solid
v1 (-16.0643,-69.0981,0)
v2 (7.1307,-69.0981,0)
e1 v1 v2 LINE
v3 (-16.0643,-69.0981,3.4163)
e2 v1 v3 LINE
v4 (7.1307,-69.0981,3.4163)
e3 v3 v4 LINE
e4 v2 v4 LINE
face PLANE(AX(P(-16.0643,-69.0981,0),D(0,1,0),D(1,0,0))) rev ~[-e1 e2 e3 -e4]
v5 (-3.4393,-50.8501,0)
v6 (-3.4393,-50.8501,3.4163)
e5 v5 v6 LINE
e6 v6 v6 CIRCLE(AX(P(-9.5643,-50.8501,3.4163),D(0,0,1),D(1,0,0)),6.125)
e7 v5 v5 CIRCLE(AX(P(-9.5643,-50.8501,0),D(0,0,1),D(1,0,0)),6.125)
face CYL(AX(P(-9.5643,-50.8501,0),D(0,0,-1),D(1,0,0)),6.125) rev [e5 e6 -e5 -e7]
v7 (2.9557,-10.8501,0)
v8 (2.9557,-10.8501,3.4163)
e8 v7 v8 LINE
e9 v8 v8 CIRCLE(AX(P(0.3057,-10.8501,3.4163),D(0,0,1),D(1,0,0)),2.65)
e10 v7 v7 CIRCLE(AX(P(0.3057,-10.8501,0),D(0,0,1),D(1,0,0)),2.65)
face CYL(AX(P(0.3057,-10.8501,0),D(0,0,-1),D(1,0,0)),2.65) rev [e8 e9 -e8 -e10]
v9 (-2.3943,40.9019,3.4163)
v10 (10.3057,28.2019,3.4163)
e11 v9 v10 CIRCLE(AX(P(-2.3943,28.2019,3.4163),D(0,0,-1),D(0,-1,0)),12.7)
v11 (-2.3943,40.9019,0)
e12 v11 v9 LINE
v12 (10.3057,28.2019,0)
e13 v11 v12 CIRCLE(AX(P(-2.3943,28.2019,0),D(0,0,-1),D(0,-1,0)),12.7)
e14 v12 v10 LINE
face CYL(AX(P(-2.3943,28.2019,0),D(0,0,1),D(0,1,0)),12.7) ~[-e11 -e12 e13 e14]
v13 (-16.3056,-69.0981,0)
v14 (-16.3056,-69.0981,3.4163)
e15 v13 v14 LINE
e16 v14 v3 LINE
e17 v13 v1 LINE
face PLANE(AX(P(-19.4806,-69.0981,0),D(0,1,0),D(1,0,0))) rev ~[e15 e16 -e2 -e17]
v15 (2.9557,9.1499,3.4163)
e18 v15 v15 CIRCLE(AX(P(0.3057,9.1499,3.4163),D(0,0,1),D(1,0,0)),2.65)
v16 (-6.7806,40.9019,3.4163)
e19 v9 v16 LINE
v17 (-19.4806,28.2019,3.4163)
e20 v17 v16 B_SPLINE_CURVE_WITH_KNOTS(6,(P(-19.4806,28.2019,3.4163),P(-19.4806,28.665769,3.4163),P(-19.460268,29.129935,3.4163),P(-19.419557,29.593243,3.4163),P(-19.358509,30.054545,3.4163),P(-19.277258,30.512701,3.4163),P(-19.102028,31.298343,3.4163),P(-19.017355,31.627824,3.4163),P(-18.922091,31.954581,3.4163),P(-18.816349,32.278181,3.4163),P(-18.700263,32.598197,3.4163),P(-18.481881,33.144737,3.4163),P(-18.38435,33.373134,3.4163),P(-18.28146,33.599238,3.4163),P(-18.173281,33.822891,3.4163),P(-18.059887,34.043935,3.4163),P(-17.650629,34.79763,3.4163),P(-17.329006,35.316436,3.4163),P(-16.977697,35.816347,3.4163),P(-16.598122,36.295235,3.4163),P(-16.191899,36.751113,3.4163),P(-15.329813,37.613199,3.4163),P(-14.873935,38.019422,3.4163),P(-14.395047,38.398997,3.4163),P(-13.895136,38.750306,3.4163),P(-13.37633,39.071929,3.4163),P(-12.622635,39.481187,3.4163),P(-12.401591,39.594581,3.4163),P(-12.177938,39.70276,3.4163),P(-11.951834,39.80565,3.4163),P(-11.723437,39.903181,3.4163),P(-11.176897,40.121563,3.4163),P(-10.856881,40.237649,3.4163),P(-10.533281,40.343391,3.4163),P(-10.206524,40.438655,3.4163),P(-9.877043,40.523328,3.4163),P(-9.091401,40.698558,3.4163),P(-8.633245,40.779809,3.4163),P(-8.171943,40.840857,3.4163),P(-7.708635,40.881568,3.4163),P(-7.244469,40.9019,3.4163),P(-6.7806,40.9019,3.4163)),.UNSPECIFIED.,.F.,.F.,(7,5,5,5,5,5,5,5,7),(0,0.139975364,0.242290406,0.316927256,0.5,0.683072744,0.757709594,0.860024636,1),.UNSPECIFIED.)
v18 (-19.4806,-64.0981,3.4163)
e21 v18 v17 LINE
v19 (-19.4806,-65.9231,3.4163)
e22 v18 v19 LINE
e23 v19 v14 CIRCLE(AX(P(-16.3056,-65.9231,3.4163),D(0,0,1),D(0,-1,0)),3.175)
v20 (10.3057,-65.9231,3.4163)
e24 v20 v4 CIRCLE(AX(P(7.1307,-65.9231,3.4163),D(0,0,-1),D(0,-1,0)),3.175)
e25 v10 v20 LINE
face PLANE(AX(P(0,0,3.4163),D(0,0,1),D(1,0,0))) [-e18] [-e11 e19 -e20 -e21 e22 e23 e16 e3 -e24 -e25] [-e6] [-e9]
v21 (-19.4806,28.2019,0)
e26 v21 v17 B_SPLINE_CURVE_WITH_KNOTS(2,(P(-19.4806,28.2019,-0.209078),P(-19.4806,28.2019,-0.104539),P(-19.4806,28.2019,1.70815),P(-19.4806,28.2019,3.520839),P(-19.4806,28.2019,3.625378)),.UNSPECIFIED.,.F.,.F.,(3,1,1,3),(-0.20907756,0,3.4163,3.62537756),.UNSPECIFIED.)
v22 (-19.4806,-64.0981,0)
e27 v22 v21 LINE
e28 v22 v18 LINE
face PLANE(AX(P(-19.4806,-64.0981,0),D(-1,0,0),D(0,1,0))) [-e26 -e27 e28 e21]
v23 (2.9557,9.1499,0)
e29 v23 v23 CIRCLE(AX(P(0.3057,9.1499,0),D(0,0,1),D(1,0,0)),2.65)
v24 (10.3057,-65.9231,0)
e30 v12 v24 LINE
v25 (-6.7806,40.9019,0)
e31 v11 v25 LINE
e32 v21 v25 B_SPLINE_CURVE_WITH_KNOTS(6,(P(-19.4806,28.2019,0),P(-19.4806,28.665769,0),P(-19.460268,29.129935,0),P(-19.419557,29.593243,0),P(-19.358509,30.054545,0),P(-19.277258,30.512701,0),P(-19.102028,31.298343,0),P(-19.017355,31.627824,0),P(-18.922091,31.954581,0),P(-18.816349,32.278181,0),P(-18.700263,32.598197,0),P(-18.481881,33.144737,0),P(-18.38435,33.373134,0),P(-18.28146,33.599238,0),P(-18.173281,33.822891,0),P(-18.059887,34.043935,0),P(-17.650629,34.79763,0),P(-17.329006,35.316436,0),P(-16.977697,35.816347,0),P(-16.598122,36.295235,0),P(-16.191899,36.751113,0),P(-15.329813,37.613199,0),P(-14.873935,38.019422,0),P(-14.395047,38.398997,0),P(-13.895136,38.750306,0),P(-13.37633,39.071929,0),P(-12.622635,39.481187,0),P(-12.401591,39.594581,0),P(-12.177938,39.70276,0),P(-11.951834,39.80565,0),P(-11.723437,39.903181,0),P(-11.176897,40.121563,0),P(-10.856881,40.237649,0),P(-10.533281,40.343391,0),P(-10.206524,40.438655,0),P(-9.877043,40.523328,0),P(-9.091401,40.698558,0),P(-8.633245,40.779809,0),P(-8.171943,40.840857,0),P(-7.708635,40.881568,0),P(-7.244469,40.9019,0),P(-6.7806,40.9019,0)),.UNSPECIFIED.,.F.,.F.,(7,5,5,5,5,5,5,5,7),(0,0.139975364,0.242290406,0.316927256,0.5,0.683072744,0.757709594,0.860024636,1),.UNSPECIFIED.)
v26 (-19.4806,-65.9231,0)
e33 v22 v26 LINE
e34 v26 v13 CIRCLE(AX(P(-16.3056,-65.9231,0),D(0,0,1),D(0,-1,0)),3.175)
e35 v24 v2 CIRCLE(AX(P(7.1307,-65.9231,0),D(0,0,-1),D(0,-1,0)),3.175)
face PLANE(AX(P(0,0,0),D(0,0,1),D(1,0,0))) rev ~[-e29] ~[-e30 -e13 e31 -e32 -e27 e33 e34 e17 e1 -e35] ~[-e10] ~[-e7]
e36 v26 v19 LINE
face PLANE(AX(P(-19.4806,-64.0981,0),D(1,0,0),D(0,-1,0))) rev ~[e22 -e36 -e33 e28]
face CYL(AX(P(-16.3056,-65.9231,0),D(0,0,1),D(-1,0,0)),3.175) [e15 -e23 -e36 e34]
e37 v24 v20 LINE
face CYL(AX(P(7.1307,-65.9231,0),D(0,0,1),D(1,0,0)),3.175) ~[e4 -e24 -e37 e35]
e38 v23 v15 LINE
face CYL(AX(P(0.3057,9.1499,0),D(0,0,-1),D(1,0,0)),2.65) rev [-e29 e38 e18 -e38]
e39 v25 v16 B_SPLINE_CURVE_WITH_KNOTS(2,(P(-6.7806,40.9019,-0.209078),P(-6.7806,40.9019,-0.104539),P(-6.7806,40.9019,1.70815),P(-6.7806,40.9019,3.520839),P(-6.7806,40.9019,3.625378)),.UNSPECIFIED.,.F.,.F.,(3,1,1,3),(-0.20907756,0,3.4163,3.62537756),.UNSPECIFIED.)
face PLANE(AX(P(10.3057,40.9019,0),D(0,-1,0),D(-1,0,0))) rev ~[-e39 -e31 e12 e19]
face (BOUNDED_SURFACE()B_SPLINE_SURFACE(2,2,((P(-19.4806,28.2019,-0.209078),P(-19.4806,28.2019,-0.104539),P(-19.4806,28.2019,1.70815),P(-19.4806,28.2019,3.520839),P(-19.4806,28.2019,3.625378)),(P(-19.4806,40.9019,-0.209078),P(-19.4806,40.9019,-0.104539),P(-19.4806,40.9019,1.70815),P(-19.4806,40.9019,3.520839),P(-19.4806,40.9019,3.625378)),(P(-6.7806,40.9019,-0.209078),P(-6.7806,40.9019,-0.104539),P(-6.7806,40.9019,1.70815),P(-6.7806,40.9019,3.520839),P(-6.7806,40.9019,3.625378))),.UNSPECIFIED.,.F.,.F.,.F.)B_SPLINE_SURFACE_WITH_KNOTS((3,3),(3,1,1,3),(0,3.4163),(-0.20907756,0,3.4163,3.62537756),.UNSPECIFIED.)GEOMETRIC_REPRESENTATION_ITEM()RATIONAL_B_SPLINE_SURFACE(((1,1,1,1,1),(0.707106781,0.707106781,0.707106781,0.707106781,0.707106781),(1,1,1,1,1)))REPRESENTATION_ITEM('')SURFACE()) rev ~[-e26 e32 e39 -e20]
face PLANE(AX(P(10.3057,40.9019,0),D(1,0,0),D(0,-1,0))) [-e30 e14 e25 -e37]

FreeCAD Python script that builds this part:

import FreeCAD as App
import Part
import Sketcher

V = App.Vector
Q = App.Units.Quantity


def edges_at(feature, points):
    """Names of the edges that pass closest to the given points."""
    edges = feature.Shape.Edges
    near = lambda p: min(range(len(edges)), key=lambda i: edges[i].distToShape(Part.Vertex(*p))[0])
    return sorted({f"Edge{near(p) + 1}" for p in points})


def add_polygon(sketch, points):
    """Adds a closed chain of lines whose ends are joined by coincident constraints."""
    first, n = sketch.GeometryCount, len(points)
    for a, b in zip(points, points[1:] + points[:1]):
        sketch.addGeometry(Part.LineSegment(App.Vector(*a, 0), App.Vector(*b, 0)), False)
    for i in range(n):
        sketch.addConstraint(Sketcher.Constraint("Coincident", first + i, 2, first + (i + 1) % n, 1))

doc = App.newDocument("Part")
params = doc.addObject("Spreadsheet::Sheet", "Params")
for row, (alias, value) in enumerate([
    ("pad1_length", "0.1345 in"),
    ("fillet_radius", "0.125 in"),
    ("fillet2_radius", "0.5 in"),
], start=1):
    params.set(f"A{row}", alias)
    params.set(f"B{row}", "=" + value)
    params.setAlias(f"B{row}", alias)

body = doc.addObject("PartDesign::Body", "Body")

# Sketch on XY plane
sketch1 = body.newObject("Sketcher::SketchObject", "Sketch")
sketch1.AttachmentSupport = (doc.getObject("XY_Plane"), [""])
sketch1.MapMode = "FlatFace"
add_polygon(sketch1, [(-19.5, 40.9), (-19.5, -69.1), (10.3, -69.1), (10.3, 40.9)])  # lines 0-3
sketch1.addGeometry(Part.Circle(V(-9.6, -50.9, 0), V(0, 0, 1), 6.1), False)  # 4
sketch1.addGeometry(Part.Circle(V(0.3, -10.9, 0), V(0, 0, 1), 2.6), False)  # 5
sketch1.addGeometry(Part.Circle(V(0.3, 9.1, 0), V(0, 0, 1), 2.6), False)  # 6
sketch1.addConstraint([
    Sketcher.Constraint("Vertical", 0),
    Sketcher.Constraint("Horizontal", 1),
    Sketcher.Constraint("Vertical", 2),
    Sketcher.Constraint("Horizontal", 3),
    Sketcher.Constraint("Equal", 5, 6),
    Sketcher.Constraint("Vertical", 5, 3, 6, 3),
    Sketcher.Constraint("Diameter", 4, 12.25),
    Sketcher.Constraint("Diameter", 5, 5.3),
    Sketcher.Constraint("DistanceX", 1, 1, 1, 2, Q("1.1727 in")),
    Sketcher.Constraint("DistanceY", 0, 2, 0, 1, Q("4.3307 in")),
    Sketcher.Constraint("DistanceX", 0, 2, 5, 3, Q("0.779 in")),
    Sketcher.Constraint("DistanceY", 0, 2, -1, 1, Q("2.7204 in")),
    Sketcher.Constraint("DistanceY", 4, 3, 5, 3, Q("1.5748 in")),
    Sketcher.Constraint("DistanceY", 5, 3, 6, 3, Q("0.7874 in")),
    Sketcher.Constraint("DistanceX", 0, 2, 4, 3, Q("0.3904 in")),
    Sketcher.Constraint("DistanceX", 4, 3, -1, 1, 9.5643),
    Sketcher.Constraint("DistanceY", 4, 3, -1, 1, 50.85),
])
pad1 = body.newObject("PartDesign::Pad", "Pad")
pad1.Profile = sketch1
pad1.setExpression("Length", "Params.pad1_length")
doc.recompute()

fillet = body.newObject("PartDesign::Fillet", "Fillet")
fillet.Base = (pad1, edges_at(pad1, [(10.306, -69.098, 1.708), (-19.481, -69.098, 1.708)]))
fillet.setExpression("Radius", "Params.fillet_radius")
doc.recompute()

fillet2 = body.newObject("PartDesign::Fillet", "Fillet001")
fillet2.Base = (fillet, edges_at(fillet, [(-19.481, 40.902, 1.708), (10.306, 40.902, 1.708)]))
fillet2.setExpression("Radius", "Params.fillet2_radius")

doc.recompute()
